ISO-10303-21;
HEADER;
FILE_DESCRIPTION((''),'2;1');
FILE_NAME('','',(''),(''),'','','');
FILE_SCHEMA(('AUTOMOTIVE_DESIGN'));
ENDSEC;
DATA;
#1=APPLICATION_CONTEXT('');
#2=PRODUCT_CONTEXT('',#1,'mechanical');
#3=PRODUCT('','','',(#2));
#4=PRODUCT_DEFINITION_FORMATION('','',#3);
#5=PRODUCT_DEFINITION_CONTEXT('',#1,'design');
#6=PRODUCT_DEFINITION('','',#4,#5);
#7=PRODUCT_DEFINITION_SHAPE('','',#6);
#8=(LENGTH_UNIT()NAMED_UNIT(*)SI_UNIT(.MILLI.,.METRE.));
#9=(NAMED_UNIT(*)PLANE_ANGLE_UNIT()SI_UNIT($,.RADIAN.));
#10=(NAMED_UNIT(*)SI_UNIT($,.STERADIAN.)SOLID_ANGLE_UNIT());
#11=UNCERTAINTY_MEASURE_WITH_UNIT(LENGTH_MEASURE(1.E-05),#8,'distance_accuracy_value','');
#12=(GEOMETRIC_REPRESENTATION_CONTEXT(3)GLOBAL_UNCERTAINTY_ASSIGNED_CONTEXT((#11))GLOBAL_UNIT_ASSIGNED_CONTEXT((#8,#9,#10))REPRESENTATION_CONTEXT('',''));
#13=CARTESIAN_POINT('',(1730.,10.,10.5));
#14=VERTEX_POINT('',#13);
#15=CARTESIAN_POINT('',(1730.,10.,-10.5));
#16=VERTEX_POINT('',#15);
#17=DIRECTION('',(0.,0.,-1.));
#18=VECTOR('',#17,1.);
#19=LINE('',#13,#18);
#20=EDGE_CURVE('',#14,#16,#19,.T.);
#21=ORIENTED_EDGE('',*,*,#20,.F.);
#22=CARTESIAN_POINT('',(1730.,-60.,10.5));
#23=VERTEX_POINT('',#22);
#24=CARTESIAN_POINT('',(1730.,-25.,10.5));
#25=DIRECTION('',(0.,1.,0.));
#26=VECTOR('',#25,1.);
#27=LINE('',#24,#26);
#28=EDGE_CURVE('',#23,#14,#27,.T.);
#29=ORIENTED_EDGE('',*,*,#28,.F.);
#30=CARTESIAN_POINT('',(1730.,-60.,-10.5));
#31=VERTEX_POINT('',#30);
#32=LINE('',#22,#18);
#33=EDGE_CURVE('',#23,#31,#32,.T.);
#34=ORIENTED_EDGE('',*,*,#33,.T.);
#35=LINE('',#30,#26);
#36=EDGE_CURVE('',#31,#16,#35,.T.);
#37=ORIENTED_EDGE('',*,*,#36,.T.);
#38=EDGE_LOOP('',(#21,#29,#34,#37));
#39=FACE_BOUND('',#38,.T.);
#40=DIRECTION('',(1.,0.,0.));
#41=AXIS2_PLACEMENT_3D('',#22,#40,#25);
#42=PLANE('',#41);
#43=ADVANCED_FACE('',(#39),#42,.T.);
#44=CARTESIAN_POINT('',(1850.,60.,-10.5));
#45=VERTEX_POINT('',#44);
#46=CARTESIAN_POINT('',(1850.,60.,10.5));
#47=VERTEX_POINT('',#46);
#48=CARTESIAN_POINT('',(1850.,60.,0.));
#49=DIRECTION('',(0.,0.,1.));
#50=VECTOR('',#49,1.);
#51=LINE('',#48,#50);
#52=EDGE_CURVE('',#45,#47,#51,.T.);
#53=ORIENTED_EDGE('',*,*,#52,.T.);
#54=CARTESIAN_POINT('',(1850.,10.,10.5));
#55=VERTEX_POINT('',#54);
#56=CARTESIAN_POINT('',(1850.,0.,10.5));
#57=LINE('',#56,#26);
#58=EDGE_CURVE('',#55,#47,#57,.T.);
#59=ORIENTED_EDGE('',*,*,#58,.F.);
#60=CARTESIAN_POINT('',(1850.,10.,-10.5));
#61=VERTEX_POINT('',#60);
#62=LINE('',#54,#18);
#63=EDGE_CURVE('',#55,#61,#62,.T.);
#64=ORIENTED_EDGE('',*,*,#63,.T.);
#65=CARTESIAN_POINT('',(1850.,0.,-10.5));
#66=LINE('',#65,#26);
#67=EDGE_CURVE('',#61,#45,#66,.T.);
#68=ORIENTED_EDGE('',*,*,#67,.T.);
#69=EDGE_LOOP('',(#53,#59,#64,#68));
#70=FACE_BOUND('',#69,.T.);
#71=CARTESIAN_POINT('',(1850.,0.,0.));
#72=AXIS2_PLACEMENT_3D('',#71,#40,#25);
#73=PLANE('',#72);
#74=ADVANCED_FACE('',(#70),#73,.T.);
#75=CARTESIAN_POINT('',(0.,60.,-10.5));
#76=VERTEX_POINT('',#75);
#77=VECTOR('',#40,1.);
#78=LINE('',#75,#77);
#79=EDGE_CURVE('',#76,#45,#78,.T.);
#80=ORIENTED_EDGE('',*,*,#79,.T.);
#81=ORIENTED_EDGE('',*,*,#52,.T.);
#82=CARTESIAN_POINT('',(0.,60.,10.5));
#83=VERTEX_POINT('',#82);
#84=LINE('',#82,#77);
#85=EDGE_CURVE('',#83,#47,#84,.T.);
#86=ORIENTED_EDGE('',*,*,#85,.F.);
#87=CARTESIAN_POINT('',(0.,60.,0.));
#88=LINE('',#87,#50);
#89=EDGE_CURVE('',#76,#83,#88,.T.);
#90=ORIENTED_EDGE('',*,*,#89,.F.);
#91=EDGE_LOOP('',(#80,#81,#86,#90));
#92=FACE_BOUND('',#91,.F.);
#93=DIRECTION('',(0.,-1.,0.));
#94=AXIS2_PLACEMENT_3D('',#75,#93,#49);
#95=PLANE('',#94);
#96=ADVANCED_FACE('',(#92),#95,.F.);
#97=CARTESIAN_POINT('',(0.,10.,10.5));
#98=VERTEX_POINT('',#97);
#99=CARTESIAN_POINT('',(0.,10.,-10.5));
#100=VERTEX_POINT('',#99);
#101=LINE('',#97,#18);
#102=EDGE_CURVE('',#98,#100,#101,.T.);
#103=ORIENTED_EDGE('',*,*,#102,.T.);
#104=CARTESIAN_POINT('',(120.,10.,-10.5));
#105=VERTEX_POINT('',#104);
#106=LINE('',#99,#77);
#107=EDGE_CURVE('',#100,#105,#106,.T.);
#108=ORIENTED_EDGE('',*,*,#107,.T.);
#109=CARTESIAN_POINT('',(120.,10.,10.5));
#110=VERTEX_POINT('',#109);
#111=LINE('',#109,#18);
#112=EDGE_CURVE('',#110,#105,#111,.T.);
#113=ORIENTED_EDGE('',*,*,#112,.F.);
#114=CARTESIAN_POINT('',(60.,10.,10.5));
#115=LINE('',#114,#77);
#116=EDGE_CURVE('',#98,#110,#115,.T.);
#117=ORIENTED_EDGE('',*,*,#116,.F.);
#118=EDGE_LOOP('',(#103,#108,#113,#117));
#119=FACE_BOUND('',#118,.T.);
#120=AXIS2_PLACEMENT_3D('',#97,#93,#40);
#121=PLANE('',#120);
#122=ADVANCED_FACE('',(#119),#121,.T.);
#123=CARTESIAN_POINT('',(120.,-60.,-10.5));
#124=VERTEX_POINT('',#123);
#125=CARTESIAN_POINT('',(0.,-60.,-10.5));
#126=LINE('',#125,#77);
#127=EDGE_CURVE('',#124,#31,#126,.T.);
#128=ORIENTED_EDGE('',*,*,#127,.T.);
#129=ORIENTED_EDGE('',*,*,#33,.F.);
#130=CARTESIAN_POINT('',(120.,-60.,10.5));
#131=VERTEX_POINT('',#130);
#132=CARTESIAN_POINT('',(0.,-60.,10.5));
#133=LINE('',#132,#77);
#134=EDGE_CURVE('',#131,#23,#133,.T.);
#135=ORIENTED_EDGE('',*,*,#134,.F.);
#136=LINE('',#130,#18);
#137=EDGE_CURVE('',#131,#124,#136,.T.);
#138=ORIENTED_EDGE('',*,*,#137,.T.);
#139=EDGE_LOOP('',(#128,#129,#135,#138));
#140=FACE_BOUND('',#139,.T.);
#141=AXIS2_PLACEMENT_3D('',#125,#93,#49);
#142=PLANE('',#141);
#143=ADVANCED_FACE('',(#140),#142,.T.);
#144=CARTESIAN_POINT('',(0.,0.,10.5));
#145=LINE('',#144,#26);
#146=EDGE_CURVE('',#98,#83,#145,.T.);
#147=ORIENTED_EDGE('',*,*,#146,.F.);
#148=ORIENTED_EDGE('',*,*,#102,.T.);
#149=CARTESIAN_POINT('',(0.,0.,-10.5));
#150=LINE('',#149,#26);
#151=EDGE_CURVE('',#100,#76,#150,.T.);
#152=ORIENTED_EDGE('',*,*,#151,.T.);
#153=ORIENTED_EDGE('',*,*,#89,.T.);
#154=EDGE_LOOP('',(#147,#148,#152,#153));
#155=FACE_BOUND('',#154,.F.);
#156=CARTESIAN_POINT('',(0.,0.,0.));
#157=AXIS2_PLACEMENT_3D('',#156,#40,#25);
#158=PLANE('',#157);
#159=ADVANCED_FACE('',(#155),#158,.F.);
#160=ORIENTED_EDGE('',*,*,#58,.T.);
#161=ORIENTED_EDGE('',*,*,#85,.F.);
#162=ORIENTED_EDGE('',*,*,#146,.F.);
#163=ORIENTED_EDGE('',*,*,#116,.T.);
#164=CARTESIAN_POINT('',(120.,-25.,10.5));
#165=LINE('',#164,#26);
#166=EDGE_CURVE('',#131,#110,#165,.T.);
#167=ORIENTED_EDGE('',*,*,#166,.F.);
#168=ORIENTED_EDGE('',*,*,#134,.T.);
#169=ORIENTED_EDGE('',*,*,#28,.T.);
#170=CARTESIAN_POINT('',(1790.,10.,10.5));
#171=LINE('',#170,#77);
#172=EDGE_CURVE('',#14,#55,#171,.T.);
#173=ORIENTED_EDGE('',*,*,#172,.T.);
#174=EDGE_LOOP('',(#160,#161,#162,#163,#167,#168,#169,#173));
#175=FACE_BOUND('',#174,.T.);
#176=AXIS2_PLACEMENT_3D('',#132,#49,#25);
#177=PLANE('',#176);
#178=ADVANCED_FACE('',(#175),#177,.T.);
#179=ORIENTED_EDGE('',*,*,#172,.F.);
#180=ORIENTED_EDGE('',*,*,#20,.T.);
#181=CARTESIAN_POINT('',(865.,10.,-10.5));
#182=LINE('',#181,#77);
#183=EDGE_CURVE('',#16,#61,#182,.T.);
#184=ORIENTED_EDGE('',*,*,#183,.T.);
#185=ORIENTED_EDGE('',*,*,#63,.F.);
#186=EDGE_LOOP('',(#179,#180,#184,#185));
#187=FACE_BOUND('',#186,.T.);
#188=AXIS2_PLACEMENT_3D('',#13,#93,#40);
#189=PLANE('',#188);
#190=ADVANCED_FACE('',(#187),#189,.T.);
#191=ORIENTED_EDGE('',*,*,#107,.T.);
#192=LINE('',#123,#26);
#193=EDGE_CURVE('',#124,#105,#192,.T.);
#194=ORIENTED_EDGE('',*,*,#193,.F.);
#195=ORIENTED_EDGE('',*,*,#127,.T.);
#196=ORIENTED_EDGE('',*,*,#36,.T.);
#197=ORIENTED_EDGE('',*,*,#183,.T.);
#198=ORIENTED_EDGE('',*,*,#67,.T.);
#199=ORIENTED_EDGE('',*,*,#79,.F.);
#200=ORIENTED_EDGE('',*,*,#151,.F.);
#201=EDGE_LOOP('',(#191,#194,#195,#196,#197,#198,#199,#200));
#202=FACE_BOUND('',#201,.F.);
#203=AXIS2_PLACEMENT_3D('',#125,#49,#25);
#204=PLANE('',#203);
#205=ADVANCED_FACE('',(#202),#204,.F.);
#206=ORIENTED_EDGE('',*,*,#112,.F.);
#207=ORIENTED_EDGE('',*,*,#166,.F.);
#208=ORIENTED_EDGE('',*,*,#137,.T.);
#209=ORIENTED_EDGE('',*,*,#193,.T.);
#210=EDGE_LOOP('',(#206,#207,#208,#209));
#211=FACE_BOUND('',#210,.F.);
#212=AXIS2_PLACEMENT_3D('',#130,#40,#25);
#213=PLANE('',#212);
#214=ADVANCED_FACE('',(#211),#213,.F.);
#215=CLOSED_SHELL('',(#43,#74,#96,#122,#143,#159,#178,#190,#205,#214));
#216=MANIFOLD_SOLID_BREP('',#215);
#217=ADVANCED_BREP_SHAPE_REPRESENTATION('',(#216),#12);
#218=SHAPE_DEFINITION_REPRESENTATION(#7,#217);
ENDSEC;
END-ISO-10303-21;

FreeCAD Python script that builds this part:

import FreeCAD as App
import Part
import Sketcher
from FreeCAD import Vector
Q = App.Units.Quantity

doc = App.newDocument("Part")
body = doc.addObject("PartDesign::Body", "Body")

sketch1 = body.newObject("Sketcher::SketchObject", "Sketch")
sketch1.AttachmentSupport = (doc.getObject("YZ_Plane"), [""])
sketch1.MapMode = "FlatFace"
sketch1.addGeometry(Part.LineSegment(Vector(-60, 10.5, 0), Vector(-60, -10.5, 0)), False)
sketch1.addGeometry(Part.LineSegment(Vector(-60, -10.5, 0), Vector(60, -10.5, 0)), False)
sketch1.addGeometry(Part.LineSegment(Vector(60, -10.5, 0), Vector(60, 10.5, 0)), False)
sketch1.addGeometry(Part.LineSegment(Vector(60, 10.5, 0), Vector(-60, 10.5, 0)), False)
sketch1.addConstraint(Sketcher.Constraint("Coincident", 0, 2, 1, 1))
sketch1.addConstraint(Sketcher.Constraint("Coincident", 1, 2, 2, 1))
sketch1.addConstraint(Sketcher.Constraint("Coincident", 2, 2, 3, 1))
sketch1.addConstraint(Sketcher.Constraint("Coincident", 3, 2, 0, 1))
sketch1.addConstraint(Sketcher.Constraint("Vertical", 0))
sketch1.addConstraint(Sketcher.Constraint("Horizontal", 1))
sketch1.addConstraint(Sketcher.Constraint("Vertical", 2))
sketch1.addConstraint(Sketcher.Constraint("Horizontal", 3))
sketch1.addConstraint(Sketcher.Constraint("Symmetric", 0, 2, 2, 2, -1, 1))
sketch1.addConstraint(Sketcher.Constraint("DistanceX", 1, 1, 1, 2, Q("120 mm")))
sketch1.addConstraint(Sketcher.Constraint("DistanceY", 0, 2, 0, 1, Q("21 mm")))
pad1 = body.newObject("PartDesign::Pad", "Pad")
pad1.Profile = sketch1
pad1.Length = 1850

sketch2 = body.newObject("Sketcher::SketchObject", "Sketch001")
sketch2.AttachmentSupport = (doc.getObject("XY_Plane"), [""])
sketch2.MapMode = "FlatFace"
sketch2.AttachmentOffset = App.Placement(Vector(0, 0, 10.5), App.Rotation())
sketch2.addGeometry(Part.LineSegment(Vector(1730, 10, 0), Vector(1730, -60, 0)), False)
sketch2.addGeometry(Part.LineSegment(Vector(1730, -60, 0), Vector(1850, -60, 0)), False)
sketch2.addGeometry(Part.LineSegment(Vector(1850, -60, 0), Vector(1850, 10, 0)), False)
sketch2.addGeometry(Part.LineSegment(Vector(1850, 10, 0), Vector(1730, 10, 0)), False)
sketch2.addGeometry(Part.LineSegment(Vector(0, 10, 0), Vector(0, -60, 0)), False)
sketch2.addGeometry(Part.LineSegment(Vector(0, -60, 0), Vector(120, -60, 0)), False)
sketch2.addGeometry(Part.LineSegment(Vector(120, -60, 0), Vector(120, 10, 0)), False)
sketch2.addGeometry(Part.LineSegment(Vector(120, 10, 0), Vector(0, 10, 0)), False)
sketch2.addConstraint(Sketcher.Constraint("Coincident", 0, 2, 1, 1))
sketch2.addConstraint(Sketcher.Constraint("Coincident", 1, 2, 2, 1))
sketch2.addConstraint(Sketcher.Constraint("Coincident", 2, 2, 3, 1))
sketch2.addConstraint(Sketcher.Constraint("Coincident", 3, 2, 0, 1))
sketch2.addConstraint(Sketcher.Constraint("Coincident", 4, 2, 5, 1))
sketch2.addConstraint(Sketcher.Constraint("Coincident", 5, 2, 6, 1))
sketch2.addConstraint(Sketcher.Constraint("Coincident", 6, 2, 7, 1))
sketch2.addConstraint(Sketcher.Constraint("Coincident", 7, 2, 4, 1))
sketch2.addConstraint(Sketcher.Constraint("Vertical", 0))
sketch2.addConstraint(Sketcher.Constraint("Horizontal", 1))
sketch2.addConstraint(Sketcher.Constraint("Vertical", 2))
sketch2.addConstraint(Sketcher.Constraint("Horizontal", 3))
sketch2.addConstraint(Sketcher.Constraint("Vertical", 4))
sketch2.addConstraint(Sketcher.Constraint("Horizontal", 5))
sketch2.addConstraint(Sketcher.Constraint("Vertical", 6))
sketch2.addConstraint(Sketcher.Constraint("Horizontal", 7))
sketch2.addConstraint(Sketcher.Constraint("PointOnObject", 4, 2, -2))
sketch2.addConstraint(Sketcher.Constraint("Horizontal", 1, 2, 4, 2))
sketch2.addConstraint(Sketcher.Constraint("Horizontal", 3, 2, 6, 2))
sketch2.addConstraint(Sketcher.Constraint("Equal", 3, 5))
sketch2.addConstraint(Sketcher.Constraint("DistanceX", 1, 1, 1, 2, Q("120 mm")))
sketch2.addConstraint(Sketcher.Constraint("DistanceY", 0, 2, 0, 1, Q("70 mm")))
sketch2.addConstraint(Sketcher.Constraint("DistanceX", -1, 1, 0, 2, Q("1730 mm")))
sketch2.addConstraint(Sketcher.Constraint("DistanceY", 0, 2, -1, 1, Q("60 mm")))
pocket1 = body.newObject("PartDesign::Pocket", "Pocket")
pocket1.Profile = sketch2
pocket1.Length = 25

doc.recompute()
